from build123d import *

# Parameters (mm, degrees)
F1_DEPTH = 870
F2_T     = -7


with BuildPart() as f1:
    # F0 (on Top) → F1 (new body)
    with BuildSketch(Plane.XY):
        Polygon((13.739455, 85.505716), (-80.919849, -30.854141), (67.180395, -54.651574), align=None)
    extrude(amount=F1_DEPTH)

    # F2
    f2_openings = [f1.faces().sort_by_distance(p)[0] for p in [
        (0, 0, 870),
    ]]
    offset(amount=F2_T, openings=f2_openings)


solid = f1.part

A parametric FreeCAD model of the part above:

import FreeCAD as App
import Part
import Sketcher
Q = App.Units.Quantity


def faces_at(feature, points):
    """Names of the faces that lie closest to the given points."""
    faces = feature.Shape.Faces
    near = lambda p: min(range(len(faces)), key=lambda i: faces[i].distToShape(Part.Vertex(*p))[0])
    return sorted({f"Face{near(p) + 1}" for p in points})

doc = App.newDocument("Part")
body = doc.addObject("PartDesign::Body", "Body")

# Sketch on XY plane
sketch1 = body.newObject("Sketcher::SketchObject", "Sketch")
sketch1.AttachmentSupport = (doc.getObject("XY_Plane"), [""])
sketch1.MapMode = "FlatFace"
sketch1.addGeometry(Part.LineSegment(App.Vector(13.739455, 85.505716, 0), App.Vector(-80.919849, -30.854141, 0)), False)
sketch1.addGeometry(Part.LineSegment(App.Vector(-80.919849, -30.854141, 0), App.Vector(67.180395, -54.651574, 0)), False)
sketch1.addGeometry(Part.LineSegment(App.Vector(67.180395, -54.651574, 0), App.Vector(13.739455, 85.505716, 0)), False)
sketch1.addConstraint(Sketcher.Constraint("Coincident", 0, 2, 1, 1))
sketch1.addConstraint(Sketcher.Constraint("Coincident", 1, 2, 2, 1))
sketch1.addConstraint(Sketcher.Constraint("Coincident", 2, 2, 0, 1))
sketch1.addConstraint(Sketcher.Constraint("Equal", 0, 1))
sketch1.addConstraint(Sketcher.Constraint("Equal", 1, 2))
sketch1.addConstraint(Sketcher.Constraint("Distance", 0, Q("150.000001 mm")))
sketch1.addConstraint(Sketcher.Constraint("DistanceX", 0, 2, -1, 1, Q("80.919849 mm")))
sketch1.addConstraint(Sketcher.Constraint("DistanceY", 0, 2, -1, 1, Q("30.854141 mm")))
sketch1.addConstraint(Sketcher.Constraint("DistanceX", 2, 2, 1, 2, Q("53.44094 mm")))
pad1 = body.newObject("PartDesign::Pad", "Pad")
pad1.Profile = sketch1
pad1.Length = 870
doc.recompute()

thickness = body.newObject("PartDesign::Thickness", "Thickness")
thickness.Base = (pad1, faces_at(pad1, [(-6.87, 15.427, 870)]))
thickness.Value = 7
thickness.Reversed = True
thickness.Join = "Arc"

doc.recompute()
